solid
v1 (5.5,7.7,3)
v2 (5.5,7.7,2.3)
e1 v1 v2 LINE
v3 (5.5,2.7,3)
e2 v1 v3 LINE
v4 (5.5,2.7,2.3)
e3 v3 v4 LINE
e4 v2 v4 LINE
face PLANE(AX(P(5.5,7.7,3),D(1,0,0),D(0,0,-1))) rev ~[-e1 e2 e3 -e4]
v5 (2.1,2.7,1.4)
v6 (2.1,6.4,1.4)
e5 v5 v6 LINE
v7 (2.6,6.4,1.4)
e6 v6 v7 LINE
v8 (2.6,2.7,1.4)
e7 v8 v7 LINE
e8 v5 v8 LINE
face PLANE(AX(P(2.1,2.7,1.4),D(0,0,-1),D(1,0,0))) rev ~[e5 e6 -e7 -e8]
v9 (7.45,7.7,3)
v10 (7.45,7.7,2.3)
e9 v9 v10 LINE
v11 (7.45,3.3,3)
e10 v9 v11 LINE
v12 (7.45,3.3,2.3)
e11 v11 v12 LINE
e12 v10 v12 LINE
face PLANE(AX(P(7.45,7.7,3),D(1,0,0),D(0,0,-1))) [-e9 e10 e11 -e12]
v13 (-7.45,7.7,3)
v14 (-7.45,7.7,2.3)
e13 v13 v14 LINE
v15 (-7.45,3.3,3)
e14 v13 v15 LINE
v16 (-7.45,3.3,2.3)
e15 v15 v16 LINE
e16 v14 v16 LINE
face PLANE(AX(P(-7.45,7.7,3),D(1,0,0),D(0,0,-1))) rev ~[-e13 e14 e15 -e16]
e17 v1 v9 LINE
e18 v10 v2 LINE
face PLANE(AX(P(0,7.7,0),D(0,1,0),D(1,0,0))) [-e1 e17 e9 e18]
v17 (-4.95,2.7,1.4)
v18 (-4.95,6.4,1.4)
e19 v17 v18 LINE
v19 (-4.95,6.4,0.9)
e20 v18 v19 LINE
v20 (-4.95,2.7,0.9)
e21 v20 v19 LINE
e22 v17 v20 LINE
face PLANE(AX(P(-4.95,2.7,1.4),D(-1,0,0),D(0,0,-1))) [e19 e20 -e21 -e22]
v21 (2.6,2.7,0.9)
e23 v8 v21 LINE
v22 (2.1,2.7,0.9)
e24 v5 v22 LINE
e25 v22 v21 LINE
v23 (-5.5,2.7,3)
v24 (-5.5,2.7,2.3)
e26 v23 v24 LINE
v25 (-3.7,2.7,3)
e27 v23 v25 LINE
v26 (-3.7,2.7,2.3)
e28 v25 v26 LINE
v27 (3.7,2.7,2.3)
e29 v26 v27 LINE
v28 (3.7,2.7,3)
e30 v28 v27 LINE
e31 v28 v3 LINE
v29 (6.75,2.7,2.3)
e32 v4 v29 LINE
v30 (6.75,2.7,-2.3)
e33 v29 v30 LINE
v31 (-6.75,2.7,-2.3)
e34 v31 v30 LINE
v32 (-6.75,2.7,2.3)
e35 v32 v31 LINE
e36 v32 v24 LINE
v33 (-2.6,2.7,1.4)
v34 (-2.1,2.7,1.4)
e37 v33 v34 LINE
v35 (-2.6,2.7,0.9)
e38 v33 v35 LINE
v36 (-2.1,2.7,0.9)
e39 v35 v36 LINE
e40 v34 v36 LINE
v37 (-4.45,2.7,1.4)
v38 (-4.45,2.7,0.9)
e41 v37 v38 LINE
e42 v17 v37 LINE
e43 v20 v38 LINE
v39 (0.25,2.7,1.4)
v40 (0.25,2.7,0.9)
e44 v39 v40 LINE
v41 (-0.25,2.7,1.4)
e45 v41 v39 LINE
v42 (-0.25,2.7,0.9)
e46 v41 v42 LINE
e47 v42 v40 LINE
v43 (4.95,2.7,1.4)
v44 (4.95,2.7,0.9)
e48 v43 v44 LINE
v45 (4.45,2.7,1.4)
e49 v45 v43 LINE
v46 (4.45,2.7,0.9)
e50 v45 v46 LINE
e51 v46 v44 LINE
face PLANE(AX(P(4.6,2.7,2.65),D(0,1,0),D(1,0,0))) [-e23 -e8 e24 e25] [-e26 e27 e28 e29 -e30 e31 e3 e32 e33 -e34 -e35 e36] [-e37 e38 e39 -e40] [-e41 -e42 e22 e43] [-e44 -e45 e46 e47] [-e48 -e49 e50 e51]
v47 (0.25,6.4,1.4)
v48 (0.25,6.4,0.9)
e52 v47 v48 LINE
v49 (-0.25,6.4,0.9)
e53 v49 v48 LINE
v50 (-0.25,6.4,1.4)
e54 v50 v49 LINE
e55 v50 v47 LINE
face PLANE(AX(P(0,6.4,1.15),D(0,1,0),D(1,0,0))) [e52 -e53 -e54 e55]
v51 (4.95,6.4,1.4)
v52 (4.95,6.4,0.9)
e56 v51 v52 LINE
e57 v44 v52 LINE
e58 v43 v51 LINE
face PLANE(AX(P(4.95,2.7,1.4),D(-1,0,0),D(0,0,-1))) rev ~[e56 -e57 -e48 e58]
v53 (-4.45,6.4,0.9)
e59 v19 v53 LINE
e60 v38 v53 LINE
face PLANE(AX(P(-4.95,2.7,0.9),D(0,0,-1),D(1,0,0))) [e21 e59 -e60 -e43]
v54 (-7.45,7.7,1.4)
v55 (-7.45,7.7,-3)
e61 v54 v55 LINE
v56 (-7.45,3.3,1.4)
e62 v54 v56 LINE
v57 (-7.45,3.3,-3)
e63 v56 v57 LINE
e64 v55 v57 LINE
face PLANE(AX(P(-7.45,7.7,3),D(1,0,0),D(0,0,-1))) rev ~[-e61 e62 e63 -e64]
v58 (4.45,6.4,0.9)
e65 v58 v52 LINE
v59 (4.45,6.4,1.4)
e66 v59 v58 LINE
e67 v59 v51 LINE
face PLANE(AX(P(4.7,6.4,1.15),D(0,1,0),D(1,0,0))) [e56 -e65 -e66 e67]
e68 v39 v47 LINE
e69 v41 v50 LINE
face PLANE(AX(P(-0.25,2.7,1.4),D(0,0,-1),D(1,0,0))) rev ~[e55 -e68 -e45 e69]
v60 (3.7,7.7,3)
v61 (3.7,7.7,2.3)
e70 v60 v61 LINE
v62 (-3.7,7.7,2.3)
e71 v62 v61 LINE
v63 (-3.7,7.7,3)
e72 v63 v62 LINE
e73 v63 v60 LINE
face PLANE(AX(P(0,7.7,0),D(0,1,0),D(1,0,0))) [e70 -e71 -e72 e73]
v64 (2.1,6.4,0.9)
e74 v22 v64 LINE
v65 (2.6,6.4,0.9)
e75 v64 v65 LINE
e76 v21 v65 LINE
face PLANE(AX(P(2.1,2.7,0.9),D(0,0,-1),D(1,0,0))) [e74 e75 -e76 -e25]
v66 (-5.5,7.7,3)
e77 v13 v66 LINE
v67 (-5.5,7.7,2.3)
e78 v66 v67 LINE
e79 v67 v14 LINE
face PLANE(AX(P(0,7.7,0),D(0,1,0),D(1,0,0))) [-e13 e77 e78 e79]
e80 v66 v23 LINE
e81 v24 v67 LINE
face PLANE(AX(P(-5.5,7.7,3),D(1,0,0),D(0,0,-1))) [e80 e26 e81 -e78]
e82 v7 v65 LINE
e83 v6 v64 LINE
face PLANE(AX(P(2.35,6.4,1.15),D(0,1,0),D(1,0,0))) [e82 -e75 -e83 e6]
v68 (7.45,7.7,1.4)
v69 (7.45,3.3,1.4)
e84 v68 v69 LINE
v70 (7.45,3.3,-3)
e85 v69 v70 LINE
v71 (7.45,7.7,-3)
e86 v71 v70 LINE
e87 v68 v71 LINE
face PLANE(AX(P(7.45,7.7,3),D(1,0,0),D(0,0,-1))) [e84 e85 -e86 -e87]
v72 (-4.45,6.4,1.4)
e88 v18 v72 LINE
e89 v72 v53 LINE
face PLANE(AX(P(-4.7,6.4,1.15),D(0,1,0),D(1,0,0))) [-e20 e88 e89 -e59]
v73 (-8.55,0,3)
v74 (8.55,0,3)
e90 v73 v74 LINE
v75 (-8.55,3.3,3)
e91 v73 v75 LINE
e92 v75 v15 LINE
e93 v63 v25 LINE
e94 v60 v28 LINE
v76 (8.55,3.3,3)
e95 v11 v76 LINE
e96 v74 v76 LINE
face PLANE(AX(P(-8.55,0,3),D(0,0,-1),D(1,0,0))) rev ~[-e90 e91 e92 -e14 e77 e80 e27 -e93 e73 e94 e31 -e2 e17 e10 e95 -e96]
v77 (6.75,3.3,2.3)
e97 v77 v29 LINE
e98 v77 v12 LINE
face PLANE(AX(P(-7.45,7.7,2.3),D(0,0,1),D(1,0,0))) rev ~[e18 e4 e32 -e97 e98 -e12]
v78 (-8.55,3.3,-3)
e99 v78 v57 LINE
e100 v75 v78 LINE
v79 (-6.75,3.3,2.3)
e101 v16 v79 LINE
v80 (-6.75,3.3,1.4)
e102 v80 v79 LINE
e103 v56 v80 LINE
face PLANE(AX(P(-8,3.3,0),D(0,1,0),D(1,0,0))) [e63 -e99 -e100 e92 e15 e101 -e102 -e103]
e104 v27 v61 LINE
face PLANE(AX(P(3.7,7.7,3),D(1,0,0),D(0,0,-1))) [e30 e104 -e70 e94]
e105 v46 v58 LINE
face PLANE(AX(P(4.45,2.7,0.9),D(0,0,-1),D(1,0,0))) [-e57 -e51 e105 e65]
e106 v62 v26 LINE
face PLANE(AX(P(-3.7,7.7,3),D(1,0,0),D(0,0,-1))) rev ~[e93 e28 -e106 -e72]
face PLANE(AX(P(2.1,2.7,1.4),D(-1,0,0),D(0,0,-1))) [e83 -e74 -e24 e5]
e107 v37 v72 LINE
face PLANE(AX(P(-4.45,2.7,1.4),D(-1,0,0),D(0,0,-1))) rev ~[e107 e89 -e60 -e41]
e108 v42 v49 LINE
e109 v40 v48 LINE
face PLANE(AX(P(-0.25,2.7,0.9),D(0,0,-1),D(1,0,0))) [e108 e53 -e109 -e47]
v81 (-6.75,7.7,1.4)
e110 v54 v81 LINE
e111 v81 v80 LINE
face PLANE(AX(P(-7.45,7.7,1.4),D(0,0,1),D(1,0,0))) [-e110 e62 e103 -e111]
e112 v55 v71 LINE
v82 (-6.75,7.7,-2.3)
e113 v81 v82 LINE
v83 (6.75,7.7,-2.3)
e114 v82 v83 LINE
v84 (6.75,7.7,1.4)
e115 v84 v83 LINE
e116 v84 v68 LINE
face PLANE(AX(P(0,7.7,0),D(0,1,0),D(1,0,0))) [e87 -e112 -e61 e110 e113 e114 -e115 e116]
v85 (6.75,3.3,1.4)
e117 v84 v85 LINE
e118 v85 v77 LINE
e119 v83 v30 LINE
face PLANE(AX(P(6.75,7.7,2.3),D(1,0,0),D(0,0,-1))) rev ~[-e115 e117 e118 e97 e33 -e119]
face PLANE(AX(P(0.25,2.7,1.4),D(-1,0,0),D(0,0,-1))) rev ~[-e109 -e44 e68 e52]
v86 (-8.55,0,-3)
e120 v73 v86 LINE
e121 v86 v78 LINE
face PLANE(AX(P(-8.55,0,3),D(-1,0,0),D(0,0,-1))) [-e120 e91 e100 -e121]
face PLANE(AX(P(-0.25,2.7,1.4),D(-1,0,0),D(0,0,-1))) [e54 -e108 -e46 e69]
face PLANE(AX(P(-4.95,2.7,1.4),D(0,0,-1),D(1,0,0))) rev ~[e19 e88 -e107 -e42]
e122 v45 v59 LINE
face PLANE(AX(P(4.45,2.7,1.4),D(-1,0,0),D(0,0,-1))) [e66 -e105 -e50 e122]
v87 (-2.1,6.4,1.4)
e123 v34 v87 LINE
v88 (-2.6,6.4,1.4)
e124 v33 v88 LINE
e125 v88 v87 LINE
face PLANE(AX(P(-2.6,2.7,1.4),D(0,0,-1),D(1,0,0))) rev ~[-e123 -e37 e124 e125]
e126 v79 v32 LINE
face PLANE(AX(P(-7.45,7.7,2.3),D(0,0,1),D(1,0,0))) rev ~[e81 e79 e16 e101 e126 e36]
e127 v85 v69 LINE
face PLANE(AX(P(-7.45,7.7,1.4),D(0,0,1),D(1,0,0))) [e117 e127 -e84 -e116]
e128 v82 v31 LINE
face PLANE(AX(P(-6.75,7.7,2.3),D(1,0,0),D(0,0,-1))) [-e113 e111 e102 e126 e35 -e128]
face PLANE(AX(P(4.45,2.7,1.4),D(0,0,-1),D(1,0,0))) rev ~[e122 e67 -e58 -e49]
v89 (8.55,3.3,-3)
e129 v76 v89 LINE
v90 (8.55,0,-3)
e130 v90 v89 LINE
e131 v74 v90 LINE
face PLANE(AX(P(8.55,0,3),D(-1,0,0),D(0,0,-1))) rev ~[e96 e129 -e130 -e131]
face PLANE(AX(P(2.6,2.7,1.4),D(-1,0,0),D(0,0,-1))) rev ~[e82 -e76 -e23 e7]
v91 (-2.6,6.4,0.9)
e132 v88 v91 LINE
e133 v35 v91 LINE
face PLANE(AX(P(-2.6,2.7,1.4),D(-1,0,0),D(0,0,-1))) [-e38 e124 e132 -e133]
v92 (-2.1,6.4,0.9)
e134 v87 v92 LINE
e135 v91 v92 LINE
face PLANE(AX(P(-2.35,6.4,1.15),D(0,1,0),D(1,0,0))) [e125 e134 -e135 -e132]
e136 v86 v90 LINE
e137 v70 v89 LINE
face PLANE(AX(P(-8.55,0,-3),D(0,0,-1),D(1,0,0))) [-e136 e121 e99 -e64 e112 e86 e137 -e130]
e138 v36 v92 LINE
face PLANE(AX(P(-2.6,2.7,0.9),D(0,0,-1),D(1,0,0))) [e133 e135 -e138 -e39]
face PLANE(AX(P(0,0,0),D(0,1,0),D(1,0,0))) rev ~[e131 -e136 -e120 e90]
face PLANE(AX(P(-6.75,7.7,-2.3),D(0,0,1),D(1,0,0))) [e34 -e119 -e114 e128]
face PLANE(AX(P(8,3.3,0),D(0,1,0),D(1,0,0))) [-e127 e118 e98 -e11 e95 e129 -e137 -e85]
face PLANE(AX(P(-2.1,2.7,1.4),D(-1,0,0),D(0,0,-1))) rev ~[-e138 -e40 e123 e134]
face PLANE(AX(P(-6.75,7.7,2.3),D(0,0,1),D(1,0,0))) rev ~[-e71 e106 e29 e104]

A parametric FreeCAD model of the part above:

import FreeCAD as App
import Part
import Sketcher

V = App.Vector

doc = App.newDocument("Part")
body = doc.addObject("PartDesign::Body", "Body")

sketch1 = doc.addObject("Sketcher::SketchObject", "Sketch")
body.addObject(sketch1)
sketch1.AttachmentSupport = (doc.XZ_Plane, [""])
sketch1.MapMode = "FlatFace"
sketch1.addGeometry([
    Part.LineSegment(V(-9, -3, 0), V(-9, 3, 0)),
    Part.LineSegment(V(-9, 3, 0), V(9, 3, 0)),
    Part.LineSegment(V(9, 3, 0), V(9, -3, 0)),
    Part.LineSegment(V(9, -3, 0), V(-9, -3, 0)),
], False)
sketch1.addConstraint([
    Sketcher.Constraint("Coincident", 0, 2, 1, 1),
    Sketcher.Constraint("Coincident", 1, 2, 2, 1),
    Sketcher.Constraint("Coincident", 2, 2, 3, 1),
    Sketcher.Constraint("Coincident", 3, 2, 0, 1),
    Sketcher.Constraint("Vertical", 0),
    Sketcher.Constraint("Horizontal", 1),
    Sketcher.Constraint("Vertical", 2),
    Sketcher.Constraint("Horizontal", 3),
    Sketcher.Constraint("Symmetric", 0, 2, 2, 2, -1, 1),
    Sketcher.Constraint("DistanceY", 0, 1, 0, 2, 6.0),
    Sketcher.Constraint("DistanceX", 1, 1, 1, 2, 17.1),
])
pad1 = doc.addObject("PartDesign::Pad", "Pad")
body.addObject(pad1)
pad1.Profile = sketch1
pad1.Length = 7.7
pad1.Reversed = True

sketch2 = doc.addObject("Sketcher::SketchObject", "Sketch001")
body.addObject(sketch2)
sketch2.AttachmentSupport = (doc.XZ_Plane, [""])
sketch2.MapMode = "FlatFace"
sketch2.AttachmentOffset = App.Placement(V(0, 0, -7.7), App.Rotation())
sketch2.addGeometry([
    Part.LineSegment(V(-6.8, -2.3, 0), V(-6.8, 2.3, 0)),
    Part.LineSegment(V(-6.8, 2.3, 0), V(6.8, 2.3, 0)),
    Part.LineSegment(V(6.8, 2.3, 0), V(6.8, -2.3, 0)),
    Part.LineSegment(V(6.8, -2.3, 0), V(-6.8, -2.3, 0)),
], False)
sketch2.addConstraint([
    Sketcher.Constraint("Coincident", 0, 2, 1, 1),
    Sketcher.Constraint("Coincident", 1, 2, 2, 1),
    Sketcher.Constraint("Coincident", 2, 2, 3, 1),
    Sketcher.Constraint("Coincident", 3, 2, 0, 1),
    Sketcher.Constraint("Vertical", 0),
    Sketcher.Constraint("Horizontal", 1),
    Sketcher.Constraint("Vertical", 2),
    Sketcher.Constraint("Horizontal", 3),
    Sketcher.Constraint("Symmetric", 0, 2, 2, 2, -1, 1),
    Sketcher.Constraint("DistanceX", 1, 1, 1, 2, 13.5),
    Sketcher.Constraint("DistanceY", 0, 1, 0, 2, 4.6),
])
pocket1 = doc.addObject("PartDesign::Pocket", "Pocket")
body.addObject(pocket1)
pocket1.Profile = sketch2
pocket1.Length = 5
pocket1.Reversed = True

sketch3 = doc.addObject("Sketcher::SketchObject", "Sketch002")
body.addObject(sketch3)
sketch3.AttachmentSupport = (doc.XZ_Plane, [""])
sketch3.MapMode = "FlatFace"
sketch3.AttachmentOffset = App.Placement(V(0, 0, -7.7), App.Rotation())
sketch3.addGeometry([
    Part.LineSegment(V(-8.6, -3, 0), V(-8.6, 3, 0)),
    Part.LineSegment(V(-8.6, 3, 0), V(-7.5, 3, 0)),
    Part.LineSegment(V(-7.5, 3, 0), V(-7.5, -3, 0)),
    Part.LineSegment(V(-7.5, -3, 0), V(-8.6, -3, 0)),
    Part.LineSegment(V(7.5, -3, 0), V(7.5, 3, 0)),
    Part.LineSegment(V(7.5, 3, 0), V(8.6, 3, 0)),
    Part.LineSegment(V(8.6, 3, 0), V(8.6, -3, 0)),
    Part.LineSegment(V(8.6, -3, 0), V(7.5, -3, 0)),
], False)
sketch3.addConstraint([
    Sketcher.Constraint("Coincident", 0, 2, 1, 1),
    Sketcher.Constraint("Coincident", 1, 2, 2, 1),
    Sketcher.Constraint("Coincident", 2, 2, 3, 1),
    Sketcher.Constraint("Coincident", 3, 2, 0, 1),
    Sketcher.Constraint("Coincident", 4, 2, 5, 1),
    Sketcher.Constraint("Coincident", 5, 2, 6, 1),
    Sketcher.Constraint("Coincident", 6, 2, 7, 1),
    Sketcher.Constraint("Coincident", 7, 2, 4, 1),
    Sketcher.Constraint("Vertical", 0),
    Sketcher.Constraint("Horizontal", 1),
    Sketcher.Constraint("Vertical", 2),
    Sketcher.Constraint("Horizontal", 3),
    Sketcher.Constraint("Vertical", 4),
    Sketcher.Constraint("Horizontal", 5),
    Sketcher.Constraint("Vertical", 6),
    Sketcher.Constraint("Horizontal", 7),
    Sketcher.Constraint("Symmetric", 2, 2, 4, 2, -1, 1),
    Sketcher.Constraint("Symmetric", 0, 2, 6, 2, -1, 1),
    Sketcher.Constraint("Horizontal", 1, 2, 4, 2),
    Sketcher.Constraint("DistanceY", 0, 1, 0, 2, 6.0),
    Sketcher.Constraint("DistanceX", 1, 1, 1, 2, 1.1),
    Sketcher.Constraint("DistanceX", 0, 2, 4, 2, 16.0),
])
pocket2 = doc.addObject("PartDesign::Pocket", "Pocket001")
body.addObject(pocket2)
pocket2.Profile = sketch3
pocket2.Length = 4.4
pocket2.Reversed = True

sketch4 = doc.addObject("Sketcher::SketchObject", "Sketch003")
body.addObject(sketch4)
sketch4.AttachmentSupport = (doc.XZ_Plane, [""])
sketch4.MapMode = "FlatFace"
sketch4.AttachmentOffset = App.Placement(V(0, 0, -7.7), App.Rotation())
sketch4.addGeometry([
    Part.LineSegment(V(-5.5, 2.3, 0), V(-5.5, 3, 0)),
    Part.LineSegment(V(-5.5, 3, 0), V(-3.7, 3, 0)),
    Part.LineSegment(V(-3.7, 3, 0), V(-3.7, 2.3, 0)),
    Part.LineSegment(V(-3.7, 2.3, 0), V(-5.5, 2.3, 0)),
    Part.LineSegment(V(3.7, 2.3, 0), V(3.7, 3, 0)),
    Part.LineSegment(V(3.7, 3, 0), V(5.5, 3, 0)),
    Part.LineSegment(V(5.5, 3, 0), V(5.5, 2.3, 0)),
    Part.LineSegment(V(5.5, 2.3, 0), V(3.7, 2.3, 0)),
], False)
sketch4.addConstraint([
    Sketcher.Constraint("Coincident", 0, 2, 1, 1),
    Sketcher.Constraint("Coincident", 1, 2, 2, 1),
    Sketcher.Constraint("Coincident", 2, 2, 3, 1),
    Sketcher.Constraint("Coincident", 3, 2, 0, 1),
    Sketcher.Constraint("Coincident", 4, 2, 5, 1),
    Sketcher.Constraint("Coincident", 5, 2, 6, 1),
    Sketcher.Constraint("Coincident", 6, 2, 7, 1),
    Sketcher.Constraint("Coincident", 7, 2, 4, 1),
    Sketcher.Constraint("Vertical", 0),
    Sketcher.Constraint("Horizontal", 1),
    Sketcher.Constraint("Vertical", 2),
    Sketcher.Constraint("Horizontal", 3),
    Sketcher.Constraint("Vertical", 4),
    Sketcher.Constraint("Horizontal", 5),
    Sketcher.Constraint("Vertical", 6),
    Sketcher.Constraint("Horizontal", 7),
    Sketcher.Constraint("Symmetric", 1, 2, 4, 2, -2),
    Sketcher.Constraint("Symmetric", 3, 2, 6, 2, -2),
    Sketcher.Constraint("DistanceX", 1, 1, 1, 2, 1.8),
    Sketcher.Constraint("DistanceY", 0, 1, 0, 2, 0.7),
    Sketcher.Constraint("DistanceY", -1, 1, 0, 2, 3.0),
    Sketcher.Constraint("DistanceX", 0, 2, 5, 2, 11.0),
])
pocket3 = doc.addObject("PartDesign::Pocket", "Pocket002")
body.addObject(pocket3)
pocket3.Profile = sketch4
pocket3.Length = 5
pocket3.Reversed = True

sketch5 = doc.addObject("Sketcher::SketchObject", "Sketch004")
body.addObject(sketch5)
sketch5.AttachmentSupport = (doc.XZ_Plane, [""])
sketch5.MapMode = "FlatFace"
sketch5.AttachmentOffset = App.Placement(V(0, 0, -7.7), App.Rotation())
sketch5.addGeometry([
    Part.LineSegment(V(-7.5, 1.4, 0), V(-7.5, 2.3, 0)),
    Part.LineSegment(V(-7.5, 2.3, 0), V(7.5, 2.3, 0)),
    Part.LineSegment(V(7.5, 2.3, 0), V(7.5, 1.4, 0)),
    Part.LineSegment(V(7.5, 1.4, 0), V(-7.5, 1.4, 0)),
], False)
sketch5.addConstraint([
    Sketcher.Constraint("Coincident", 0, 2, 1, 1),
    Sketcher.Constraint("Coincident", 1, 2, 2, 1),
    Sketcher.Constraint("Coincident", 2, 2, 3, 1),
    Sketcher.Constraint("Coincident", 3, 2, 0, 1),
    Sketcher.Constraint("Vertical", 0),
    Sketcher.Constraint("Horizontal", 1),
    Sketcher.Constraint("Vertical", 2),
    Sketcher.Constraint("Horizontal", 3),
    Sketcher.Constraint("DistanceX", 1, 1, 1, 2, 14.9),
    Sketcher.Constraint("DistanceY", 0, 1, 0, 2, 0.9),
    Sketcher.Constraint("DistanceY", -1, 1, 0, 2, 2.3),
    Sketcher.Constraint("DistanceX", 0, 2, -1, 1, 7.45),
])
pocket4 = doc.addObject("PartDesign::Pocket", "Pocket003")
body.addObject(pocket4)
pocket4.Profile = sketch5
pocket4.Length = 4.4
pocket4.Reversed = True

sketch6 = doc.addObject("Sketcher::SketchObject", "Sketch005")
body.addObject(sketch6)
sketch6.AttachmentSupport = (doc.XZ_Plane, [""])
sketch6.MapMode = "FlatFace"
sketch6.AttachmentOffset = App.Placement(V(0, 0, -2.7), App.Rotation())
sketch6.addGeometry([
    Part.LineSegment(V(-0.25, 0.9, 0), V(-0.25, 1.4, 0)),
    Part.LineSegment(V(-0.25, 1.4, 0), V(0.25, 1.4, 0)),
    Part.LineSegment(V(0.25, 1.4, 0), V(0.25, 0.9, 0)),
    Part.LineSegment(V(0.25, 0.9, 0), V(-0.25, 0.9, 0)),
    Part.LineSegment(V(-2.6, 0.9, 0), V(-2.6, 1.4, 0)),
    Part.LineSegment(V(-2.6, 1.4, 0), V(-2.1, 1.4, 0)),
    Part.LineSegment(V(-2.1, 1.4, 0), V(-2.1, 0.9, 0)),
    Part.LineSegment(V(-2.1, 0.9, 0), V(-2.6, 0.9, 0)),
    Part.LineSegment(V(2.1, 0.9, 0), V(2.1, 1.4, 0)),
    Part.LineSegment(V(2.1, 1.4, 0), V(2.6, 1.4, 0)),
    Part.LineSegment(V(2.6, 1.4, 0), V(2.6, 0.9, 0)),
    Part.LineSegment(V(2.6, 0.9, 0), V(2.1, 0.9, 0)),
    Part.LineSegment(V(4.45, 0.9, 0), V(4.45, 1.4, 0)),
    Part.LineSegment(V(4.45, 1.4, 0), V(4.95, 1.4, 0)),
    Part.LineSegment(V(4.95, 1.4, 0), V(4.95, 0.9, 0)),
    Part.LineSegment(V(4.95, 0.9, 0), V(4.45, 0.9, 0)),
    Part.LineSegment(V(-4.95, 0.9, 0), V(-4.95, 1.4, 0)),
    Part.LineSegment(V(-4.95, 1.4, 0), V(-4.45, 1.4, 0)),
    Part.LineSegment(V(-4.45, 1.4, 0), V(-4.45, 0.9, 0)),
    Part.LineSegment(V(-4.45, 0.9, 0), V(-4.95, 0.9, 0)),
], False)
sketch6.addConstraint([
    Sketcher.Constraint("Coincident", 0, 2, 1, 1),
    Sketcher.Constraint("Coincident", 1, 2, 2, 1),
    Sketcher.Constraint("Coincident", 2, 2, 3, 1),
    Sketcher.Constraint("Coincident", 3, 2, 0, 1),
    Sketcher.Constraint("Coincident", 4, 2, 5, 1),
    Sketcher.Constraint("Coincident", 5, 2, 6, 1),
    Sketcher.Constraint("Coincident", 6, 2, 7, 1),
    Sketcher.Constraint("Coincident", 7, 2, 4, 1),
    Sketcher.Constraint("Coincident", 8, 2, 9, 1),
    Sketcher.Constraint("Coincident", 9, 2, 10, 1),
    Sketcher.Constraint("Coincident", 10, 2, 11, 1),
    Sketcher.Constraint("Coincident", 11, 2, 8, 1),
    Sketcher.Constraint("Coincident", 12, 2, 13, 1),
    Sketcher.Constraint("Coincident", 13, 2, 14, 1),
    Sketcher.Constraint("Coincident", 14, 2, 15, 1),
    Sketcher.Constraint("Coincident", 15, 2, 12, 1),
    Sketcher.Constraint("Coincident", 16, 2, 17, 1),
    Sketcher.Constraint("Coincident", 17, 2, 18, 1),
    Sketcher.Constraint("Coincident", 18, 2, 19, 1),
    Sketcher.Constraint("Coincident", 19, 2, 16, 1),
    Sketcher.Constraint("Vertical", 0),
    Sketcher.Constraint("Horizontal", 1),
    Sketcher.Constraint("Vertical", 2),
    Sketcher.Constraint("Horizontal", 3),
    Sketcher.Constraint("Vertical", 4),
    Sketcher.Constraint("Horizontal", 5),
    Sketcher.Constraint("Vertical", 6),
    Sketcher.Constraint("Horizontal", 7),
    Sketcher.Constraint("Vertical", 8),
    Sketcher.Constraint("Horizontal", 9),
    Sketcher.Constraint("Vertical", 10),
    Sketcher.Constraint("Horizontal", 11),
    Sketcher.Constraint("Vertical", 12),
    Sketcher.Constraint("Horizontal", 13),
    Sketcher.Constraint("Vertical", 14),
    Sketcher.Constraint("Horizontal", 15),
    Sketcher.Constraint("Vertical", 16),
    Sketcher.Constraint("Horizontal", 17),
    Sketcher.Constraint("Vertical", 18),
    Sketcher.Constraint("Horizontal", 19),
    Sketcher.Constraint("Symmetric", 5, 2, 8, 2, -2),
    Sketcher.Constraint("Symmetric", 7, 2, 10, 2, -2),
    Sketcher.Constraint("Symmetric", 13, 2, 16, 2, -2),
    Sketcher.Constraint("Symmetric", 15, 2, 18, 2, -2),
    Sketcher.Constraint("Horizontal", 1, 2, 4, 2),
    Sketcher.Constraint("Horizontal", 3, 2, 6, 2),
    Sketcher.Constraint("Horizontal", 9, 2, 12, 2),
    Sketcher.Constraint("Horizontal", 11, 2, 14, 2),
    Sketcher.Constraint("Equal", 3, 5),
    Sketcher.Constraint("Equal", 11, 13),
    Sketcher.Constraint("Equal", 19, 0),
    Sketcher.Constraint("DistanceX", 1, 1, 1, 2, 0.5),
    Sketcher.Constraint("DistanceY", -1, 1, 0, 2, 1.4),
    Sketcher.Constraint("DistanceX", 4, 2, -1, 1, 2.6),
    Sketcher.Constraint("DistanceX", 1, 2, 12, 2, 4.2),
    Sketcher.Constraint("DistanceX", 16, 2, 0, 2, 4.7),
])
pad2 = doc.addObject("PartDesign::Pad", "Pad001")
body.addObject(pad2)
pad2.Profile = sketch6
pad2.Length = 3.7
pad2.Reversed = True

doc.recompute()
